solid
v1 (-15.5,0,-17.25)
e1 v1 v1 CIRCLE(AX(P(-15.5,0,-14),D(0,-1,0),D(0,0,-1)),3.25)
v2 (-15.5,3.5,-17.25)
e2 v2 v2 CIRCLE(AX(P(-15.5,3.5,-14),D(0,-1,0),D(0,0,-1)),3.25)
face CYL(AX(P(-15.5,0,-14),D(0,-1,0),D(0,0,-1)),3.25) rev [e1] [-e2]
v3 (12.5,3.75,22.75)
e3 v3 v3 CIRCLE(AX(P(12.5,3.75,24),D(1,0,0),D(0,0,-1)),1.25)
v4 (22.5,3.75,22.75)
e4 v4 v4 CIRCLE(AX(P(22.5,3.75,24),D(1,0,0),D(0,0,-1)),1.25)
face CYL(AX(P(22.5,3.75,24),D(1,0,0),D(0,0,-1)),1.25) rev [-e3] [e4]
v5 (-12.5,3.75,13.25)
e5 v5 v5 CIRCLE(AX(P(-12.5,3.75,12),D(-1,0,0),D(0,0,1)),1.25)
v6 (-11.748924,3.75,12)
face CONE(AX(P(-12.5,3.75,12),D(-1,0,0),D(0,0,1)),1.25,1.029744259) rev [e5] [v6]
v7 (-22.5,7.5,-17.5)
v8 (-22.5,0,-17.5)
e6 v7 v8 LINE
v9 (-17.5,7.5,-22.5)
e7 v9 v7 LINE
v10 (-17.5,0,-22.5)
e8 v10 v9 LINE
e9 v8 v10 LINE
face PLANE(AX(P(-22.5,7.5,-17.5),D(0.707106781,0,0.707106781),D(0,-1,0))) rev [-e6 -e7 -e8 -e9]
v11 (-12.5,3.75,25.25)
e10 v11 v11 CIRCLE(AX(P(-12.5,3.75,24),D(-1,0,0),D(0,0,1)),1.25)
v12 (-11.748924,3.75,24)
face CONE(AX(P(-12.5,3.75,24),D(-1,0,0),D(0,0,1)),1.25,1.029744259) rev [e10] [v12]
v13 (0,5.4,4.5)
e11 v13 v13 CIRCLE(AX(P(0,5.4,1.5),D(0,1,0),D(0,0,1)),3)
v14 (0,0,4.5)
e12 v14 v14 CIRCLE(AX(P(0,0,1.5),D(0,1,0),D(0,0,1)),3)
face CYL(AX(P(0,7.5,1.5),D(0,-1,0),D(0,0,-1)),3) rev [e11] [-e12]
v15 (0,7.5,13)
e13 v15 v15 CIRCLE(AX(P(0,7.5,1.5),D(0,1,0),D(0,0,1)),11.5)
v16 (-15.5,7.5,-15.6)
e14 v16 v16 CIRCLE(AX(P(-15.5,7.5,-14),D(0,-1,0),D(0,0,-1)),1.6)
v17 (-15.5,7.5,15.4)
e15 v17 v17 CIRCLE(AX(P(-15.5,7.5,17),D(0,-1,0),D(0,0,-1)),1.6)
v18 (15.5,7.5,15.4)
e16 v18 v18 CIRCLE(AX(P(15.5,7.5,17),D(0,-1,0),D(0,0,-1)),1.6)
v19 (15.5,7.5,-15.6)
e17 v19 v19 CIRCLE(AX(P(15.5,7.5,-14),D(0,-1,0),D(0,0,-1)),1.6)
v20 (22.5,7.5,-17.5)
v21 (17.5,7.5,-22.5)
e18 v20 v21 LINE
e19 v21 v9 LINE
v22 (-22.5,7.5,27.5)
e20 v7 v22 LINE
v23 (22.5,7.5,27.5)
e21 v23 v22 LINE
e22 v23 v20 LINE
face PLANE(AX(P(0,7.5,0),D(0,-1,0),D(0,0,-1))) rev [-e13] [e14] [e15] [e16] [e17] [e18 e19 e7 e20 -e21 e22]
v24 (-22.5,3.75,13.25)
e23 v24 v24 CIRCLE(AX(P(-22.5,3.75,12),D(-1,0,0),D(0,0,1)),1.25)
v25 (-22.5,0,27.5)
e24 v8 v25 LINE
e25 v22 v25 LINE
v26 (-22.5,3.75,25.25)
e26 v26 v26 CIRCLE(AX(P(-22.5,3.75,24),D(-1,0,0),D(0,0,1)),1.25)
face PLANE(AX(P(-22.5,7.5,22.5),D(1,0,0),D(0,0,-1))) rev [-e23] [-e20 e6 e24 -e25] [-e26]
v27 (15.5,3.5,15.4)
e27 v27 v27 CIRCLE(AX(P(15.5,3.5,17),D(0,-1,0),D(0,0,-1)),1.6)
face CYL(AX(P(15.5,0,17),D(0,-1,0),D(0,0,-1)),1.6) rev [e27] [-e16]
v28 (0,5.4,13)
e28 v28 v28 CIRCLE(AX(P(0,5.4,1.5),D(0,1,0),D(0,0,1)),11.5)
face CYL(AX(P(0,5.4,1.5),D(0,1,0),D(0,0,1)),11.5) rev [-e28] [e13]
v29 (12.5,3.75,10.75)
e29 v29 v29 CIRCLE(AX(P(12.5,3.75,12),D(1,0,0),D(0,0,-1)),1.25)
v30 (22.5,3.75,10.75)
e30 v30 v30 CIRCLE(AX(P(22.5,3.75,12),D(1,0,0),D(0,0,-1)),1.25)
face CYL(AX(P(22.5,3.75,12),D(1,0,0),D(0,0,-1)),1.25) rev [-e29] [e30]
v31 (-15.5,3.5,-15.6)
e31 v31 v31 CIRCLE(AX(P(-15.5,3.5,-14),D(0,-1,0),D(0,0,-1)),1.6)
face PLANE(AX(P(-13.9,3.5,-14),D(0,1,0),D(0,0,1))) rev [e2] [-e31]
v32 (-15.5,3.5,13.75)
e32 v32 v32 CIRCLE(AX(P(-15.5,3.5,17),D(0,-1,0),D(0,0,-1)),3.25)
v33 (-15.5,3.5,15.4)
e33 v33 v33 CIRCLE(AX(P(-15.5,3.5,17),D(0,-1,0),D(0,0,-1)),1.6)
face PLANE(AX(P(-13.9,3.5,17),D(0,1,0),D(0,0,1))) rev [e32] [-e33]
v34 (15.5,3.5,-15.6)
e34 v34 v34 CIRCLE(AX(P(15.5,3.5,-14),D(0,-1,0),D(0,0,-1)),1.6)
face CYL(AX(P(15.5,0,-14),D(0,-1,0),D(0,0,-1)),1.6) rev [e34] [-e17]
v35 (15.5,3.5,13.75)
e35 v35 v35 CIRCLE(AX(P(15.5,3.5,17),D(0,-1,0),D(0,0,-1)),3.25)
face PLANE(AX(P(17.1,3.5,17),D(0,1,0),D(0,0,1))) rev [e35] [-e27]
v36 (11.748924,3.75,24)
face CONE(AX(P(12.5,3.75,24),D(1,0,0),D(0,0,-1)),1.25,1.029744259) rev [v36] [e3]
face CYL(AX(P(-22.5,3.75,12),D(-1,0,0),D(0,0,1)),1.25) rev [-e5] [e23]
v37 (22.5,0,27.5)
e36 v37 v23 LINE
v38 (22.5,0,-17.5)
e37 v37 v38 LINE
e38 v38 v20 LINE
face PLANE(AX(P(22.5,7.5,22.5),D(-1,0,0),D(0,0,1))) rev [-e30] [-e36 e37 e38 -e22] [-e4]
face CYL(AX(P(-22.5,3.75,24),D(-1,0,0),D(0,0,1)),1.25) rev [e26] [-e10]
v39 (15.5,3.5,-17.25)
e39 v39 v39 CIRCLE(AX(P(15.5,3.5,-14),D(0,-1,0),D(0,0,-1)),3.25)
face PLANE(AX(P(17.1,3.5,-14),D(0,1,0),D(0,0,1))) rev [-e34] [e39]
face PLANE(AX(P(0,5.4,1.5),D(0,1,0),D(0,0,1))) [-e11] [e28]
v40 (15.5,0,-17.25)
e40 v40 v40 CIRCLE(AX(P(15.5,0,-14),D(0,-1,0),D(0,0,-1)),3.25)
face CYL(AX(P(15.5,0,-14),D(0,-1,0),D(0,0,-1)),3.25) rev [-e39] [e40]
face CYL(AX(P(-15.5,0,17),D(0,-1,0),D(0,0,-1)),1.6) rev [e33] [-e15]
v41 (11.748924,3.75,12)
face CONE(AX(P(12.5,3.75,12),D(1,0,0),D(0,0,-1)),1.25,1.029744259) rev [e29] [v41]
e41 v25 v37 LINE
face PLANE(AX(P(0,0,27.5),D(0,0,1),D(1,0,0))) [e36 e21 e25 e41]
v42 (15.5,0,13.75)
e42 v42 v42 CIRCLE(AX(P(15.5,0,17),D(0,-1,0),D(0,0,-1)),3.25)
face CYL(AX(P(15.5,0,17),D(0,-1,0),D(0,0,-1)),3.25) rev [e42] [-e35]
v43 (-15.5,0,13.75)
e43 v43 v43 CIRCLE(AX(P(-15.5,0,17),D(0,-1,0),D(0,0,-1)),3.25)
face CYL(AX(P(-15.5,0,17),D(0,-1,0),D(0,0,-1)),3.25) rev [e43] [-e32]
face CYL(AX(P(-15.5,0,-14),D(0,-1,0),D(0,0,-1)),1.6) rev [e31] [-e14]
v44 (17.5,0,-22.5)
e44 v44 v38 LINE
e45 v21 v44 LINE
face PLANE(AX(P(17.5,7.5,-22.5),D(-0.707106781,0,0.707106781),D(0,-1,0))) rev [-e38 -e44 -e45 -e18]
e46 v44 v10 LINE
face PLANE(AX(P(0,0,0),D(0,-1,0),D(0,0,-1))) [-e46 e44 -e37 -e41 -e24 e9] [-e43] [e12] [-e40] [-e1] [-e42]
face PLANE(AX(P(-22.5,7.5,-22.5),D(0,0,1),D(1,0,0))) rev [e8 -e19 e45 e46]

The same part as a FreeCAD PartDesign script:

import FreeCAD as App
import Part
import Sketcher
from FreeCAD import Vector
Q = App.Units.Quantity


def edges_at(feature, points):
    """Names of the edges that pass closest to the given points."""
    edges = feature.Shape.Edges
    near = lambda p: min(range(len(edges)), key=lambda i: edges[i].distToShape(Part.Vertex(*p))[0])
    return sorted({f"Edge{near(p) + 1}" for p in points})


def add_polygon(sketch, points):
    """Adds a closed chain of lines whose ends are joined by coincident constraints."""
    first, n = sketch.GeometryCount, len(points)
    for a, b in zip(points, points[1:] + points[:1]):
        sketch.addGeometry(Part.LineSegment(App.Vector(*a, 0), App.Vector(*b, 0)), False)
    for i in range(n):
        sketch.addConstraint(Sketcher.Constraint("Coincident", first + i, 2, first + (i + 1) % n, 1))

doc = App.newDocument("Part")
body = doc.addObject("PartDesign::Body", "Body")

sketch1 = body.newObject("Sketcher::SketchObject", "Sketch")
sketch1.AttachmentSupport = (doc.getObject("XZ_Plane"), [""])
sketch1.MapMode = "FlatFace"
add_polygon(sketch1, [(-22.5, -22.5), (-22.5, 22.5), (22.5, 22.5), (22.5, -22.5)])
sketch1.addGeometry(Part.Circle(Vector(0, 1.5, 0), Vector(0, 0, 1), 3), False)
sketch1.addConstraint([
    Sketcher.Constraint("Vertical", 0),
    Sketcher.Constraint("Horizontal", 1),
    Sketcher.Constraint("Vertical", 2),
    Sketcher.Constraint("Horizontal", 3),
    Sketcher.Constraint("Symmetric", 0, 2, 2, 2, -1, 1),
    Sketcher.Constraint("PointOnObject", 4, 3, -2),
    Sketcher.Constraint("Equal", 3, 0),
    Sketcher.Constraint("Diameter", 4, Q("6 mm")),
    Sketcher.Constraint("DistanceX", 1, 1, 1, 2, Q("45 mm")),
    Sketcher.Constraint("DistanceY", 4, 3, 0, 2, Q("21 mm")),
])
pad1 = body.newObject("PartDesign::Pad", "Pad")
pad1.Profile = sketch1
pad1.Length = 7.5
pad1.Reversed = True

sketch2 = body.newObject("Sketcher::SketchObject", "Sketch001")
sketch2.AttachmentSupport = (doc.getObject("XZ_Plane"), [""])
sketch2.MapMode = "FlatFace"
sketch2.AttachmentOffset = App.Placement(Vector(0, 0, -7.5), App.Rotation())
sketch2.addGeometry(Part.Circle(Vector(0, 2, 0), Vector(0, 0, 1), 12), False)
sketch2.addConstraint([
    Sketcher.Constraint("PointOnObject", 0, 3, -2),
    Sketcher.Constraint("Diameter", 0, Q("23 mm")),
    Sketcher.Constraint("DistanceY", -1, 1, 0, 3, Q("1.5 mm")),
])
pocket1 = body.newObject("PartDesign::Pocket", "Pocket")
pocket1.Profile = sketch2
pocket1.Length = 2.1
pocket1.Reversed = True
doc.recompute()

chamfer = body.newObject("PartDesign::Chamfer", "Chamfer")
chamfer.Base = (pocket1, edges_at(pocket1, [(-22.5, 3.75, -22.5), (22.5, 3.75, -22.5)]))
chamfer.Size = 5

sketch3 = body.newObject("Sketcher::SketchObject", "Sketch002")
sketch3.AttachmentSupport = (doc.getObject("XZ_Plane"), [""])
sketch3.MapMode = "FlatFace"
sketch3.addGeometry([
    Part.Circle(Vector(-15.5, -14, 0), Vector(0, 0, 1), 1.6),
    Part.Circle(Vector(15.5, 17, 0), Vector(0, 0, 1), 1.6),
    Part.Circle(Vector(15.5, -14, 0), Vector(0, 0, 1), 1.6),
    Part.Circle(Vector(-15.5, 17, 0), Vector(0, 0, 1), 1.6),
], False)
sketch3.addConstraint([
    Sketcher.Constraint("Equal", 0, 1),
    Sketcher.Constraint("Equal", 1, 2),
    Sketcher.Constraint("Equal", 2, 3),
    Sketcher.Constraint("Symmetric", 0, 3, 2, 3, -2),
    Sketcher.Constraint("Symmetric", 1, 3, 3, 3, -2),
    Sketcher.Constraint("Vertical", 1, 3, 2, 3),
    Sketcher.Constraint("Diameter", 0, Q("3.2 mm")),
    Sketcher.Constraint("DistanceY", 0, 3, -1, 1, Q("14 mm")),
    Sketcher.Constraint("DistanceY", -1, 1, 1, 3, Q("17 mm")),
    Sketcher.Constraint("DistanceX", 0, 3, 1, 3, Q("31 mm")),
])
doc.recompute()
hole = body.newObject("PartDesign::Hole", "Hole")
hole.Profile = sketch3
hole.ThreadType = "None"
hole.Diameter = 3.2
hole.DepthType = "Dimension"
hole.Depth = 7.5
hole.DrillPoint = "Flat"
hole.HoleCutType = "Counterbore"
hole.HoleCutDiameter = 6.5
hole.HoleCutDepth = 3.5

sketch4 = body.newObject("Sketcher::SketchObject", "Sketch003")
sketch4.AttachmentSupport = (doc.getObject("XY_Plane"), [""])
sketch4.MapMode = "FlatFace"
sketch4.AttachmentOffset = App.Placement(Vector(0, 0, 22.5), App.Rotation())
add_polygon(sketch4, [(-22, 8), (-22, 0), (22, 0), (22, 8)])
sketch4.addConstraint([
    Sketcher.Constraint("Vertical", 0),
    Sketcher.Constraint("Horizontal", 1),
    Sketcher.Constraint("Vertical", 2),
    Sketcher.Constraint("Horizontal", 3),
    Sketcher.Constraint("Symmetric", 0, 2, 1, 2, -1, 1),
    Sketcher.Constraint("DistanceX", 1, 1, 1, 2, Q("45 mm")),
    Sketcher.Constraint("DistanceY", 0, 2, 0, 1, Q("7.5 mm")),
])
pad2 = body.newObject("PartDesign::Pad", "Pad001")
pad2.Profile = sketch4
pad2.Length = 5

sketch5 = body.newObject("Sketcher::SketchObject", "Sketch004")
sketch5.AttachmentSupport = (doc.getObject("XZ_Plane"), [""])
sketch5.MapMode = "FlatFace"
sketch5.AttachmentOffset = App.Placement(Vector(0, 0, -3.75), App.Rotation())
add_polygon(sketch5, [(-11.7, 24), (-22.5, 24), (-22.5, 25.2), (-12.5, 25.2)])
sketch5.addGeometry(Part.LineSegment(Vector(-22.5, 24, 0), Vector(-11.7, 24, 0)), True)
sketch5.addConstraint([
    Sketcher.Constraint("Horizontal", 0),
    Sketcher.Constraint("Vertical", 1),
    Sketcher.Constraint("Horizontal", 2),
    Sketcher.Constraint("Horizontal", 4),
    Sketcher.Constraint("Coincident", 4, 1, 0, 2),
    Sketcher.Constraint("Equal", 0, 4),
    Sketcher.Constraint("DistanceX", 2, 1, 2, 2, Q("10 mm")),
    Sketcher.Constraint("Angle", 3, Q("-59 deg")),
    Sketcher.Constraint("DistanceY", -1, 1, 0, 2, Q("24 mm")),
    Sketcher.Constraint("DistanceY", 1, 1, 1, 2, Q("1.25 mm")),
    Sketcher.Constraint("DistanceX", 0, 2, -1, 1, Q("22.5 mm")),
])
groove = body.newObject("PartDesign::Groove", "Groove")
groove.Profile = sketch5
groove.ReferenceAxis = (sketch5, ["Axis0"])
groove.Angle = 360
doc.recompute()

linearpattern = body.newObject("PartDesign::LinearPattern", "LinearPattern")
linearpattern.Originals = [groove]
linearpattern.Direction = (doc.getObject("Z_Axis"), [""])
linearpattern.Mode = "offset"
linearpattern.Offset = 12
linearpattern.Occurrences = 2
linearpattern.Reversed = True
body.Tip = linearpattern
doc.recompute()

mirrored = body.newObject("PartDesign::Mirrored", "Mirrored")
mirrored.Originals = [groove]
mirrored.MirrorPlane = (doc.getObject("YZ_Plane"), [""])
body.Tip = mirrored

sketch6 = body.newObject("Sketcher::SketchObject", "Sketch005")
sketch6.AttachmentSupport = (doc.getObject("XZ_Plane"), [""])
sketch6.MapMode = "FlatFace"
sketch6.AttachmentOffset = App.Placement(Vector(0, 0, -3.75), App.Rotation())
add_polygon(sketch6, [(22.5, 12), (11.7, 12), (12.5, 13.2), (22.5, 13.2)])
sketch6.addGeometry(Part.LineSegment(Vector(11.7, 12, 0), Vector(22.5, 12, 0)), True)
sketch6.addConstraint([
    Sketcher.Constraint("Horizontal", 0),
    Sketcher.Constraint("Horizontal", 2),
    Sketcher.Constraint("Vertical", 3),
    Sketcher.Constraint("Horizontal", 4),
    Sketcher.Constraint("Coincident", 4, 1, 0, 2),
    Sketcher.Constraint("Vertical", 2, 2, 4, 2),
    Sketcher.Constraint("DistanceX", 2, 1, 2, 2, Q("10 mm")),
    Sketcher.Constraint("Angle", 1, Q("59 deg")),
    Sketcher.Constraint("DistanceY", -1, 1, 0, 2, Q("12 mm")),
    Sketcher.Constraint("DistanceY", 3, 2, 3, 1, Q("1.25 mm")),
    Sketcher.Constraint("DistanceX", -1, 1, 1, 2, Q("12.5 mm")),
])
groove2 = body.newObject("PartDesign::Groove", "Groove001")
groove2.Profile = sketch6
groove2.ReferenceAxis = (sketch6, ["Axis0"])
groove2.Angle = 360

doc.recompute()
